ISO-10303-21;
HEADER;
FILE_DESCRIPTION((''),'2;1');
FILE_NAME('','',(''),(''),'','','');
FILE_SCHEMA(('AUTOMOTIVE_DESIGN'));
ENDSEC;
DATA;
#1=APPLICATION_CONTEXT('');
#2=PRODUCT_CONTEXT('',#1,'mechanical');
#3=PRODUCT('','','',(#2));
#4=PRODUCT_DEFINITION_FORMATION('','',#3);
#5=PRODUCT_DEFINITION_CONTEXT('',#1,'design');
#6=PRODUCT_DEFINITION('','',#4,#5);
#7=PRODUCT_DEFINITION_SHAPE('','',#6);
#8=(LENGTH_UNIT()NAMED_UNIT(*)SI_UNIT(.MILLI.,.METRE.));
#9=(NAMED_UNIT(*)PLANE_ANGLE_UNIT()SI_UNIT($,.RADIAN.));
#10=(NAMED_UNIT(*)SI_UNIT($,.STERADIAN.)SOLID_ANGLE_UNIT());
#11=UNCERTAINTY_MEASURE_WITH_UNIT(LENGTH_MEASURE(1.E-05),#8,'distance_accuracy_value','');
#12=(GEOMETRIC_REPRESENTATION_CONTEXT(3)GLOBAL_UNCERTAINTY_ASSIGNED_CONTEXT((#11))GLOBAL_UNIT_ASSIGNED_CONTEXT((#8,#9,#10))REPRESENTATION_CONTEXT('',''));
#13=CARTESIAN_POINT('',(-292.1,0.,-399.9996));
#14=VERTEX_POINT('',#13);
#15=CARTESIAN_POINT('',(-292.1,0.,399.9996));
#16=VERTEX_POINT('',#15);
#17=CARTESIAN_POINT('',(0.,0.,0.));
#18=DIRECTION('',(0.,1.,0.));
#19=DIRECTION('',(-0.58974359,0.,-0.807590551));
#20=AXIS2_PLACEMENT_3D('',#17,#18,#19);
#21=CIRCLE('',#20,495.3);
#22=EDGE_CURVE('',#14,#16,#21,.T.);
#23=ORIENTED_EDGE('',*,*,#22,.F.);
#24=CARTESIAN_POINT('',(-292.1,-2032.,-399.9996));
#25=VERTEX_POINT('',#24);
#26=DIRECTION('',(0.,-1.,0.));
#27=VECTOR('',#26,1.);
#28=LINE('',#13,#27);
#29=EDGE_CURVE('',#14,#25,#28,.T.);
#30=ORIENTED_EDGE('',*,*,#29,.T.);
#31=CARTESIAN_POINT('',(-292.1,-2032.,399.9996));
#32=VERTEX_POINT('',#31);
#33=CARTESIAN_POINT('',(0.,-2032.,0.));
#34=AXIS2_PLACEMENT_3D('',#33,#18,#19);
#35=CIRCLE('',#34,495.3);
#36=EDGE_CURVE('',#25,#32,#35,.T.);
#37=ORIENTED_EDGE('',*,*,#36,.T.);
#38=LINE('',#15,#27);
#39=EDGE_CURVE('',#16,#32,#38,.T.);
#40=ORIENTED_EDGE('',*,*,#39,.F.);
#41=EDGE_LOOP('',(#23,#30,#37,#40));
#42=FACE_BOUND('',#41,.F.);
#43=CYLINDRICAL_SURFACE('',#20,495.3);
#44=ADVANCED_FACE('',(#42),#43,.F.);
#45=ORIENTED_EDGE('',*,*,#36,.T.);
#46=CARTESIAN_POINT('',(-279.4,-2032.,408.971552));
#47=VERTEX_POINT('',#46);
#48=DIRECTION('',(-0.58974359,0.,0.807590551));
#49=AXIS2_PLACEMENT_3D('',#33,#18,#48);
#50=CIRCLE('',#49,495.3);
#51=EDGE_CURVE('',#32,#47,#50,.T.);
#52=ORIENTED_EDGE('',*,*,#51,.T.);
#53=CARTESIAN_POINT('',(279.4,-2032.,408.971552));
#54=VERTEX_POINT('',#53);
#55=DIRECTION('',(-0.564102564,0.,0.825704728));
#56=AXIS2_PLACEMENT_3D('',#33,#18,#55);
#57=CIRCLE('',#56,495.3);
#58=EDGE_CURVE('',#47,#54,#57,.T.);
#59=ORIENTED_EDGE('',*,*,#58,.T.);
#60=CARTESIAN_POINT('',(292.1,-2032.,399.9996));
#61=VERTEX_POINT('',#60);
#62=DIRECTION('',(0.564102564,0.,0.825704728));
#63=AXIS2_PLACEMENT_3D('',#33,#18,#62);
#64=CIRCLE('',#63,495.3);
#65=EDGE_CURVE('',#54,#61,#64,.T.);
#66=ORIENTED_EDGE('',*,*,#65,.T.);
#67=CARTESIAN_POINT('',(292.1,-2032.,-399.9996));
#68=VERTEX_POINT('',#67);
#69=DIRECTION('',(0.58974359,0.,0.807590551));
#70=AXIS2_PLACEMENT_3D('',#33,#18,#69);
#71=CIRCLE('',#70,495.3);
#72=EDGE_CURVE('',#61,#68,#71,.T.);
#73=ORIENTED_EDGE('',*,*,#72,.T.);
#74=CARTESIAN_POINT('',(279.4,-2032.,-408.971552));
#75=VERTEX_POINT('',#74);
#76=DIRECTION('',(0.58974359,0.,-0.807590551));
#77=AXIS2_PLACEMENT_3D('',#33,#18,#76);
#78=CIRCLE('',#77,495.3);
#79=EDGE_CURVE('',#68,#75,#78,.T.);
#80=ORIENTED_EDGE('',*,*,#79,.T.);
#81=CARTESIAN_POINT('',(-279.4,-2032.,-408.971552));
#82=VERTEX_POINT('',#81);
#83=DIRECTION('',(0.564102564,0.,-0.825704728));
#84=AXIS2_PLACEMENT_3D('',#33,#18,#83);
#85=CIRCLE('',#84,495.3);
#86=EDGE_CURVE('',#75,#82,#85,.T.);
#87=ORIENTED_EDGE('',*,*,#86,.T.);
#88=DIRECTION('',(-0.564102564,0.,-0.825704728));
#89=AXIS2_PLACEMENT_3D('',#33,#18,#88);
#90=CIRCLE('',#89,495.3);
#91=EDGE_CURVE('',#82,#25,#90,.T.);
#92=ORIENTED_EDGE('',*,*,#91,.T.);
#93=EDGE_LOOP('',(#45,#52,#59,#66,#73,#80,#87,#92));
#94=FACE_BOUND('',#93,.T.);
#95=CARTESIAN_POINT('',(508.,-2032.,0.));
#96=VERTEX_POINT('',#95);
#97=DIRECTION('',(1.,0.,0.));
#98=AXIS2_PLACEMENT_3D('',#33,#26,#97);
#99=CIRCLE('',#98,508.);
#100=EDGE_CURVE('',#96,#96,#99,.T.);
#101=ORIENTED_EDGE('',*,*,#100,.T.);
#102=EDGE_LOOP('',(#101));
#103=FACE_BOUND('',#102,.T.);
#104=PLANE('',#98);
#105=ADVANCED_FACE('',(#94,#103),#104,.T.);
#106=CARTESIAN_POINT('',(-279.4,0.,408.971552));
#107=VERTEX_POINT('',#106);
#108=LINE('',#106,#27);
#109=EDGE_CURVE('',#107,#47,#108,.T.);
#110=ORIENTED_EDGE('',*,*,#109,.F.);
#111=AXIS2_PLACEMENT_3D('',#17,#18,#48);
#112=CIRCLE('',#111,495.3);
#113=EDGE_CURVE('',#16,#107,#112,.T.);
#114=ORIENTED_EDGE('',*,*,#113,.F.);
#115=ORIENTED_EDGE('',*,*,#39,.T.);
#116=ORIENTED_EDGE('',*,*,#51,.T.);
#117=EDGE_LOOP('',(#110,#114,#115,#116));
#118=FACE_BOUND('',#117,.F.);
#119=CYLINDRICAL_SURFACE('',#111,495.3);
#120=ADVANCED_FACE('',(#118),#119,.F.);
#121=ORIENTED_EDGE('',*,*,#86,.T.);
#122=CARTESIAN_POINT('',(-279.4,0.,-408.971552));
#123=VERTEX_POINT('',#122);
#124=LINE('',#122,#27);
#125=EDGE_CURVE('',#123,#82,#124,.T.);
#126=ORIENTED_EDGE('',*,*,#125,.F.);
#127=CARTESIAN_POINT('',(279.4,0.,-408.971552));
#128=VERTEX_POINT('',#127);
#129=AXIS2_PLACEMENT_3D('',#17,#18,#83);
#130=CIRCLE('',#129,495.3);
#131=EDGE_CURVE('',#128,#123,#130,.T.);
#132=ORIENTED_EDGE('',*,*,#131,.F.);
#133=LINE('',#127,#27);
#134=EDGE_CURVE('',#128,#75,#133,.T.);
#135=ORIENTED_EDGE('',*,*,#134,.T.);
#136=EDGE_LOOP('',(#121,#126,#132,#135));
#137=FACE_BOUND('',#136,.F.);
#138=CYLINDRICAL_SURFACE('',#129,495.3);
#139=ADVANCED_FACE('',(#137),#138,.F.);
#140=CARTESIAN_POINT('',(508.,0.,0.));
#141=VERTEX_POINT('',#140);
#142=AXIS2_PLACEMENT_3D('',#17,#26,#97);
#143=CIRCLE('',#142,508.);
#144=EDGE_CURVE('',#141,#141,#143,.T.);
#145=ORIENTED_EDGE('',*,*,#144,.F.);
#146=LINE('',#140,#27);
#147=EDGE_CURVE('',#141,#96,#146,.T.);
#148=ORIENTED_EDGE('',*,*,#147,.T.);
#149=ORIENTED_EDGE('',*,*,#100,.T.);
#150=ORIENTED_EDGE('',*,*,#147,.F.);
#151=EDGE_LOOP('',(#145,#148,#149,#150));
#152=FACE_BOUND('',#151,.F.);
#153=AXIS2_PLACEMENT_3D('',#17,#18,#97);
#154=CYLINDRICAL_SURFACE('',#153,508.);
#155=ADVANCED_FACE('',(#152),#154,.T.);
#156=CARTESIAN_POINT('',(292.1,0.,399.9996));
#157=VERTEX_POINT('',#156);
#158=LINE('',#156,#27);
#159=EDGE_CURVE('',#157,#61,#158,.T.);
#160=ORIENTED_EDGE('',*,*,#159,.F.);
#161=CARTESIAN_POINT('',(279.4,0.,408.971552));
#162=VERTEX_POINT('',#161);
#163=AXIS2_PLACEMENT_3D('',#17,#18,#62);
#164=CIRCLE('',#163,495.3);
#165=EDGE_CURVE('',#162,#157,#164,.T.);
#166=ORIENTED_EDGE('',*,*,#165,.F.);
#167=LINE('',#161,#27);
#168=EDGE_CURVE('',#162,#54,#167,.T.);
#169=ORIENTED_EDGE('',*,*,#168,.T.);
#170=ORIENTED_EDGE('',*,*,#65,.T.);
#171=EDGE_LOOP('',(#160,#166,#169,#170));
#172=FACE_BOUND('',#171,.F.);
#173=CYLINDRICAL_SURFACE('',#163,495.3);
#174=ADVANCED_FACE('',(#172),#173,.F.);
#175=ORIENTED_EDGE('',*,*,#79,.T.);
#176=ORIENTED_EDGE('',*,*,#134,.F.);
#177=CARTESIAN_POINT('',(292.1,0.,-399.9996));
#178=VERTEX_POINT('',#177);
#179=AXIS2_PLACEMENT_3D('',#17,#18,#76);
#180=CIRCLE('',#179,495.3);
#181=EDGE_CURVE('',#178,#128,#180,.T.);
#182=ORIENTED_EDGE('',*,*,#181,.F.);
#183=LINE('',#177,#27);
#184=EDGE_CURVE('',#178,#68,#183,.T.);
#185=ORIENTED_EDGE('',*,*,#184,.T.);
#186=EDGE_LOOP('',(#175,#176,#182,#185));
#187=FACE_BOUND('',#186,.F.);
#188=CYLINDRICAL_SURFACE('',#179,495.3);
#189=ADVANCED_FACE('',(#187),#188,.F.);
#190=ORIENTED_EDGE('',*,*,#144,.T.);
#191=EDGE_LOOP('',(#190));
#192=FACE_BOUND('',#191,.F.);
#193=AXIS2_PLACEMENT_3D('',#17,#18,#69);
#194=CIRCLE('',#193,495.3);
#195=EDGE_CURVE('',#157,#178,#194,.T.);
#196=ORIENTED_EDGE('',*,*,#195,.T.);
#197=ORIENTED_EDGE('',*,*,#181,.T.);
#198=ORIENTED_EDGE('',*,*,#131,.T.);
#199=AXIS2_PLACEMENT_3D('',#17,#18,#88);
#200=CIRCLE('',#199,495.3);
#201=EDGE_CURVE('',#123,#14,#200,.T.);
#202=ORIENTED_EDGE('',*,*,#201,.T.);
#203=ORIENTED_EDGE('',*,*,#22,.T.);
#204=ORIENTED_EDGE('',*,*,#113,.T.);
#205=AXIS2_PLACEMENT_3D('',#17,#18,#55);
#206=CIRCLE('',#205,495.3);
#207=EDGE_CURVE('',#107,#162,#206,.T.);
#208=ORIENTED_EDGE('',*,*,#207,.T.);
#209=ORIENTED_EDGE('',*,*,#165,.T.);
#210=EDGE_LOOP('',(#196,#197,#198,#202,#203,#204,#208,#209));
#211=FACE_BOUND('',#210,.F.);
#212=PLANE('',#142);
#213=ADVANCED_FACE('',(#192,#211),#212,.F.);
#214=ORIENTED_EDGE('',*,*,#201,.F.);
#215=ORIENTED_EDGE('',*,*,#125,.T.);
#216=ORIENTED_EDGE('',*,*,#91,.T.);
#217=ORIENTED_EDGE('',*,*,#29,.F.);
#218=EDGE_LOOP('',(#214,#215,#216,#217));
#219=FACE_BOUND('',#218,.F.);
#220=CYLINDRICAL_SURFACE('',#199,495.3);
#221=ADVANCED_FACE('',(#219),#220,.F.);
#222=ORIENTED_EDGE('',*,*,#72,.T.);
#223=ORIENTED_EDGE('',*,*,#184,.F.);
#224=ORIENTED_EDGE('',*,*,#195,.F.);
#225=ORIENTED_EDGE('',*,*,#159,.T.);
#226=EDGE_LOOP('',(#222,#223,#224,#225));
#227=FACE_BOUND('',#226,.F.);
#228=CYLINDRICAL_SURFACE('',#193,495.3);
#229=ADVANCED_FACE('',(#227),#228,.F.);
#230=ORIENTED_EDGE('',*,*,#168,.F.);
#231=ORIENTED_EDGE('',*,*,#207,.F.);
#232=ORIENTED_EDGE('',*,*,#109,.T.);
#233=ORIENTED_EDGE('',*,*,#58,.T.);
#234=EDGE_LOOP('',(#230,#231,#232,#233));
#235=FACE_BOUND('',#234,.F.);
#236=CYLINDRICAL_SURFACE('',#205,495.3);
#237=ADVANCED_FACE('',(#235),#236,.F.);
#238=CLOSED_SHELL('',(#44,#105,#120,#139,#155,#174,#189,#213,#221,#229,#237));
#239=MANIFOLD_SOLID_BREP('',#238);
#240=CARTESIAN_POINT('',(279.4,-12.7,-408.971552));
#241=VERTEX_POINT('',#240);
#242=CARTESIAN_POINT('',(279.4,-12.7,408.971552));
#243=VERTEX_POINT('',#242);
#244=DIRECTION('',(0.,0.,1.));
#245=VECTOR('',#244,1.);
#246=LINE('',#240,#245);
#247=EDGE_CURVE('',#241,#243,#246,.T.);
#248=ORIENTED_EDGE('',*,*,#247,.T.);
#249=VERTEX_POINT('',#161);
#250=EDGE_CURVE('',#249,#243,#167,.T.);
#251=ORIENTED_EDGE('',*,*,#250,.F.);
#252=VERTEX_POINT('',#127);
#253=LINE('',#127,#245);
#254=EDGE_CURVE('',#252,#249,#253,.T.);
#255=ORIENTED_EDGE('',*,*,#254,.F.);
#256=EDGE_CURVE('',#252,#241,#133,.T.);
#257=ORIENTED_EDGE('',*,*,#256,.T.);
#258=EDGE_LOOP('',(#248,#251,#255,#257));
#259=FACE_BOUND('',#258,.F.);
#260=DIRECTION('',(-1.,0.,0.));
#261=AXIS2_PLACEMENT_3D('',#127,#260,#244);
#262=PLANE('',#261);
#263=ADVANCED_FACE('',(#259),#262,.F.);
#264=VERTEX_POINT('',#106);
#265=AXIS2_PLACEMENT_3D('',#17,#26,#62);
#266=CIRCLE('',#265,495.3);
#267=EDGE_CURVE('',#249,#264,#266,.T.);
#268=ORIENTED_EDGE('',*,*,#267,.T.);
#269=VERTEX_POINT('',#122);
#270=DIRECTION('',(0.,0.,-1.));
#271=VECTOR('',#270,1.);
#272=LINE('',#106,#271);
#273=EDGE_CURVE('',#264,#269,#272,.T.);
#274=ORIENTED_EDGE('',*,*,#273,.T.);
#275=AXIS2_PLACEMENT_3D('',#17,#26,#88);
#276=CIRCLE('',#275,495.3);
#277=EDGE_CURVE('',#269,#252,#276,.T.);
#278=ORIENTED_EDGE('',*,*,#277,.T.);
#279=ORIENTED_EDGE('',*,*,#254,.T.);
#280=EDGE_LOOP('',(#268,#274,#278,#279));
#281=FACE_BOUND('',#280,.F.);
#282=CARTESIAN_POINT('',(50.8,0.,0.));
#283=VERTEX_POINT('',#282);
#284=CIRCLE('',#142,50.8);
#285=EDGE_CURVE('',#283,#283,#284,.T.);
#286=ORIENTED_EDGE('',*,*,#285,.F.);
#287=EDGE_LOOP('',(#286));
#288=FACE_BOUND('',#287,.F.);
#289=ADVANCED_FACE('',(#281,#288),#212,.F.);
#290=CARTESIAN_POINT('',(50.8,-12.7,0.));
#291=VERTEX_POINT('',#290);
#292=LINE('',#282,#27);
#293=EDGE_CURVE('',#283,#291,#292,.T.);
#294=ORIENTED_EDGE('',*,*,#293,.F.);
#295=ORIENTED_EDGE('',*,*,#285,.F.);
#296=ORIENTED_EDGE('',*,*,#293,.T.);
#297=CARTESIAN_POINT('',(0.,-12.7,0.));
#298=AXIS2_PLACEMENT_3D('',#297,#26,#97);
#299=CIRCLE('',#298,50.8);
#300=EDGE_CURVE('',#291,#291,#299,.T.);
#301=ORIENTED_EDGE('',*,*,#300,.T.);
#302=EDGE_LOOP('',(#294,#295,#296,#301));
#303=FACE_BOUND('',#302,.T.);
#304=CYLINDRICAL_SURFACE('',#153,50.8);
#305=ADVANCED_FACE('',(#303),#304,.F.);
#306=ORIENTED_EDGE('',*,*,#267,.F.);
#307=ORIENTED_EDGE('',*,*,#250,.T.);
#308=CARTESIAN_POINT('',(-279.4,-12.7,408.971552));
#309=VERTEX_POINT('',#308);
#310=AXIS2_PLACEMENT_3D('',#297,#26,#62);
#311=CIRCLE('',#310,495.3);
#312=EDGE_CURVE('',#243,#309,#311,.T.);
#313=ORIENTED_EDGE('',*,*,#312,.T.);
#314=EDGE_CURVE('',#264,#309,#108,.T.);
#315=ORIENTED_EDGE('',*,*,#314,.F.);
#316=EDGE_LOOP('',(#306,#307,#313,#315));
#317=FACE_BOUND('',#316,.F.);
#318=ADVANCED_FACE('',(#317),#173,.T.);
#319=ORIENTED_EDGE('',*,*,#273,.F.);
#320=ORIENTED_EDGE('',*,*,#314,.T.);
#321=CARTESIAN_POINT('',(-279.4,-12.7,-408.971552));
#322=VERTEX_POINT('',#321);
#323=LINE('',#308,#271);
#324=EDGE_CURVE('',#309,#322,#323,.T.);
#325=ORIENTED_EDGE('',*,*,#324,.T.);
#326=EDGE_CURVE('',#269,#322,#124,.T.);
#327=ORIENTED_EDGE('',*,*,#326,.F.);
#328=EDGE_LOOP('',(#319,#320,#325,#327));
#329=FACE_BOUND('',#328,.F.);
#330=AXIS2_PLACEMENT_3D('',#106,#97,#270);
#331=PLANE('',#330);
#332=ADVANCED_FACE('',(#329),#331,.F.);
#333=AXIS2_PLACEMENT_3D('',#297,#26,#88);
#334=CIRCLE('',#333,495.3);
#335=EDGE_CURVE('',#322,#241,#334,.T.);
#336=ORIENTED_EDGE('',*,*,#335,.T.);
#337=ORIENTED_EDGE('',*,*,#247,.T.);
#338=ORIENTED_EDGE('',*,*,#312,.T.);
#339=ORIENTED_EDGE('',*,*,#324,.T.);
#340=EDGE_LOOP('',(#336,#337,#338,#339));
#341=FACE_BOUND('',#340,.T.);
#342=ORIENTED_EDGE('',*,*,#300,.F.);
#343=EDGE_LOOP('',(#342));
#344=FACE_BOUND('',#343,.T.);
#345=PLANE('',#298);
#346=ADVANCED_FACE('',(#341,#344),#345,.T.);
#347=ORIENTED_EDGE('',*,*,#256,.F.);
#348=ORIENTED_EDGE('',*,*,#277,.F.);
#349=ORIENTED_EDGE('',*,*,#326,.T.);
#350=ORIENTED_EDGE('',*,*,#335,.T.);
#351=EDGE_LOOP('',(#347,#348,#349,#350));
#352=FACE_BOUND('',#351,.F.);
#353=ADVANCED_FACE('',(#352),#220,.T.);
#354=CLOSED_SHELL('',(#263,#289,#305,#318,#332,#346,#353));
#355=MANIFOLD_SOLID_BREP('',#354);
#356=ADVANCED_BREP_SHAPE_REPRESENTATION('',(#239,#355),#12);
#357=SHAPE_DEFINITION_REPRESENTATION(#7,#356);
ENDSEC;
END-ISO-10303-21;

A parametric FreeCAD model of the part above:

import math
import FreeCAD as App
import Part
import Sketcher
Q = App.Units.Quantity

doc = App.newDocument("Part")
params = doc.addObject("Spreadsheet::Sheet", "Params")
for row, (alias, value) in enumerate([
    ("sketch1_diameter", "40 in"),
    ("sketch1_radius", "19.5 in"),
    ("pad1_length", "80 in"),
    ("sketch2_diameter", "4 in"),
    ("pocket1_length", "1 in"),
    ("sketch3_diameter", "4 in"),
    ("sketch3_radius", "19.5 in"),
    ("pad2_length", "0.5 in"),
], start=1):
    params.set(f"A{row}", alias)
    params.set(f"B{row}", "=" + value)
    params.setAlias(f"B{row}", alias)

body = doc.addObject("PartDesign::Body", "Body")

# Sketch on XZ plane
sketch1 = body.newObject("Sketcher::SketchObject", "Sketch")
sketch1.AttachmentSupport = (doc.getObject("XZ_Plane"), [""])
sketch1.MapMode = "FlatFace"
sketch1.addGeometry([
    Part.Circle(App.Vector(0, 0, 0), App.Vector(0, 0, 1), 508),  # 0
    Part.ArcOfCircle(Part.Circle(App.Vector(0, 0, 0), App.Vector(0, 0, 1), 495), math.radians(53.86), math.radians(55.66)),  # 1
    Part.ArcOfCircle(Part.Circle(App.Vector(0, 0, 0), App.Vector(0, 0, 1), 495), math.radians(-54), math.radians(54)),  # 2
    Part.ArcOfCircle(Part.Circle(App.Vector(0, 0, 0), App.Vector(0, 0, 1), 495), math.radians(-55.66), math.radians(-53.86)),  # 3
    Part.ArcOfCircle(Part.Circle(App.Vector(0, 0, 0), App.Vector(0, 0, 1), 495), math.radians(-124), math.radians(-56)),  # 4
    Part.ArcOfCircle(Part.Circle(App.Vector(0, 0, 0), App.Vector(0, 0, 1), 495), math.radians(-126.14), math.radians(-124.34)),  # 5
    Part.ArcOfCircle(Part.Circle(App.Vector(0, 0, 0), App.Vector(0, 0, 1), 495), math.radians(126), math.radians(234)),  # 6
    Part.ArcOfCircle(Part.Circle(App.Vector(0, 0, 0), App.Vector(0, 0, 1), 495), math.radians(124.34), math.radians(126.14)),  # 7
    Part.ArcOfCircle(Part.Circle(App.Vector(0, 0, 0), App.Vector(0, 0, 1), 495), math.radians(56), math.radians(124)),  # 8
], False)
sketch1.addConstraint([
    Sketcher.Constraint("Tangent", 1, 1, 2, 2),
    Sketcher.Constraint("Coincident", 2, 1, 3, 2),
    Sketcher.Constraint("Tangent", 3, 1, 4, 2),
    Sketcher.Constraint("Coincident", 4, 1, 5, 2),
    Sketcher.Constraint("Tangent", 5, 1, 6, 2),
    Sketcher.Constraint("Coincident", 6, 1, 7, 2),
    Sketcher.Constraint("Tangent", 7, 1, 8, 2),
    Sketcher.Constraint("Coincident", 8, 1, 1, 2),
    Sketcher.Constraint("Coincident", 0, 3, -1, 1),
    Sketcher.Constraint("Coincident", 1, 3, -1, 1),
    Sketcher.Constraint("Coincident", 3, 3, -1, 1),
    Sketcher.Constraint("Coincident", 5, 3, -1, 1),
    Sketcher.Constraint("Coincident", 7, 3, -1, 1),
    Sketcher.Constraint("Equal", 1, 2),
    Sketcher.Constraint("Equal", 3, 4),
    Sketcher.Constraint("Equal", 5, 6),
    Sketcher.Constraint("Horizontal", 3, 1, 4, 1),
    Sketcher.Constraint("Horizontal", 2, 1, 5, 1),
    Sketcher.Constraint("Horizontal", 1, 1, 6, 1),
    Sketcher.Constraint("Horizontal", 7, 1, 8, 1),
    Sketcher.Constraint("Vertical", 1, 1, 2, 1),
    Sketcher.Constraint("Vertical", 4, 1, 7, 1),
    Sketcher.Constraint("Diameter", 0, Q("40 in")),
    Sketcher.Constraint("Radius", 1, Q("19.5 in")),
    Sketcher.Constraint("DistanceX", -1, 1, 3, 1, Q("11 in")),
    Sketcher.Constraint("DistanceX", -1, 1, 1, 1, Q("11.5 in")),
])
sketch1.setExpression("Constraints[22]", "Params.sketch1_diameter")
sketch1.setExpression("Constraints[23]", "Params.sketch1_radius")
pad1 = body.newObject("PartDesign::Pad", "Pad")
pad1.Profile = sketch1
pad1.setExpression("Length", "Params.pad1_length")

# Sketch on XZ plane
sketch2 = body.newObject("Sketcher::SketchObject", "Sketch001")
sketch2.AttachmentSupport = (doc.getObject("XZ_Plane"), [""])
sketch2.MapMode = "FlatFace"
sketch2.addGeometry(Part.Circle(App.Vector(0, 0, 0), App.Vector(0, 0, 1), 51), False)
sketch2.addConstraint([
    Sketcher.Constraint("Coincident", 0, 3, -1, 1),
    Sketcher.Constraint("Diameter", 0, Q("4 in")),
])
sketch2.setExpression("Constraints[1]", "Params.sketch2_diameter")
pocket1 = body.newObject("PartDesign::Pocket", "Pocket")
pocket1.Profile = sketch2
pocket1.setExpression("Length", "Params.pocket1_length")
pocket1.Reversed = True
body2 = doc.addObject("PartDesign::Body", "Body001")

# Sketch on XZ plane
sketch3 = body2.newObject("Sketcher::SketchObject", "Sketch002")
sketch3.AttachmentSupport = (doc.getObject("XZ_Plane001"), [""])
sketch3.MapMode = "FlatFace"
sketch3.addGeometry([
    Part.LineSegment(App.Vector(279, -409, 0), App.Vector(279, 409, 0)),  # 0
    Part.ArcOfCircle(Part.Circle(App.Vector(0, 0, 0), App.Vector(0, 0, 1), 495), math.radians(56), math.radians(124)),  # 1
    Part.LineSegment(App.Vector(-279, 409, 0), App.Vector(-279, -409, 0)),  # 2
    Part.ArcOfCircle(Part.Circle(App.Vector(0, 0, 0), App.Vector(0, 0, 1), 495), math.radians(-124), math.radians(-56)),  # 3
    Part.Circle(App.Vector(0, 0, 0), App.Vector(0, 0, 1), 51),  # 4
], False)
sketch3.addConstraint([
    Sketcher.Constraint("Coincident", 0, 2, 1, 1),
    Sketcher.Constraint("Coincident", 1, 2, 2, 1),
    Sketcher.Constraint("Coincident", 2, 2, 3, 1),
    Sketcher.Constraint("Coincident", 3, 2, 0, 1),
    Sketcher.Constraint("Vertical", 0),
    Sketcher.Constraint("Vertical", 2),
    Sketcher.Constraint("Coincident", 1, 3, -1, 1),
    Sketcher.Constraint("Coincident", 3, 3, -1, 1),
    Sketcher.Constraint("Coincident", 4, 3, -1, 1),
    Sketcher.Constraint("Equal", 1, 3),
    Sketcher.Constraint("Horizontal", 0, 2, 1, 2),
    Sketcher.Constraint("Diameter", 4, Q("4 in")),
    Sketcher.Constraint("Radius", 1, Q("19.5 in")),
    Sketcher.Constraint("DistanceX", -1, 1, 0, 2, Q("11 in")),
])
sketch3.setExpression("Constraints[11]", "Params.sketch3_diameter")
sketch3.setExpression("Constraints[12]", "Params.sketch3_radius")
pad2 = body2.newObject("PartDesign::Pad", "Pad001")
pad2.Profile = sketch3
pad2.setExpression("Length", "Params.pad2_length")

doc.recompute()
